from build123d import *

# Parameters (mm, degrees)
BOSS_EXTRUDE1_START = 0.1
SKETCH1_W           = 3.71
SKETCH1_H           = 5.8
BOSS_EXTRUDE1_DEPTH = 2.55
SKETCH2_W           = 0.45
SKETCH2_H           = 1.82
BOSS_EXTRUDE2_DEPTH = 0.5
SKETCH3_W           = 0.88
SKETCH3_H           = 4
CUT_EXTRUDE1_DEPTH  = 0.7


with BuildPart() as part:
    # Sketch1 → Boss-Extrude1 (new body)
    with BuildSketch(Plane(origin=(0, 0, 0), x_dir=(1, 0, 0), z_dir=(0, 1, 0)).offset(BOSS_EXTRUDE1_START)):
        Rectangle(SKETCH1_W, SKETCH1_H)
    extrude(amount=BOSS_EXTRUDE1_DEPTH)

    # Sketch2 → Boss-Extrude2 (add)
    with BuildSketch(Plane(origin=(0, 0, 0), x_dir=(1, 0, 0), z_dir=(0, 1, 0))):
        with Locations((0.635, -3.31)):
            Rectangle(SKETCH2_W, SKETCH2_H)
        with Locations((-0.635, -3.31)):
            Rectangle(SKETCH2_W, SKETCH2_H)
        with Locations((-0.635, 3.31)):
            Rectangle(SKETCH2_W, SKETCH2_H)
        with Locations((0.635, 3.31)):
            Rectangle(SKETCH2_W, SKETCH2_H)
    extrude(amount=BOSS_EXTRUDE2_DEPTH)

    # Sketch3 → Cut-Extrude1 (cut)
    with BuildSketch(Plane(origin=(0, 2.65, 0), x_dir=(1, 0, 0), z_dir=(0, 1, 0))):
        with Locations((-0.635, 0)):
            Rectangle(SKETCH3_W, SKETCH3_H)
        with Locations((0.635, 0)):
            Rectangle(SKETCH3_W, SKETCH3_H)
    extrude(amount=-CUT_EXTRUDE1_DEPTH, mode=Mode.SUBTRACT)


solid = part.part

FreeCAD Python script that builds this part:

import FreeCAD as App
import Part
import Sketcher

V = App.Vector


def add_polygon(sketch, points):
    """Adds a closed chain of lines whose ends are joined by coincident constraints."""
    first, n = sketch.GeometryCount, len(points)
    for a, b in zip(points, points[1:] + points[:1]):
        sketch.addGeometry(Part.LineSegment(App.Vector(*a, 0), App.Vector(*b, 0)), False)
    for i in range(n):
        sketch.addConstraint(Sketcher.Constraint("Coincident", first + i, 2, first + (i + 1) % n, 1))

doc = App.newDocument("Part")
body = doc.addObject("PartDesign::Body", "Body")

# Sketch on XZ plane
sketch1 = body.newObject("Sketcher::SketchObject", "Sketch")
sketch1.AttachmentSupport = (doc.getObject("XZ_Plane"), [""])
sketch1.MapMode = "FlatFace"
sketch1.AttachmentOffset = App.Placement(V(0, 0, -0.1), App.Rotation())
add_polygon(sketch1, [(-1.855, -2.9), (-1.855, 2.9), (1.855, 2.9), (1.855, -2.9)])  # lines 0-3
sketch1.addConstraint([
    Sketcher.Constraint("Vertical", 0),
    Sketcher.Constraint("Horizontal", 1),
    Sketcher.Constraint("Vertical", 2),
    Sketcher.Constraint("Horizontal", 3),
    Sketcher.Constraint("Symmetric", 0, 2, 2, 2, -1, 1),
    Sketcher.Constraint("DistanceY", 0, 1, 0, 2, 5.8),
    Sketcher.Constraint("DistanceX", 1, 1, 1, 2, 3.71),
])
pad1 = body.newObject("PartDesign::Pad", "Pad")
pad1.Profile = sketch1
pad1.Length = 2.55
pad1.Reversed = True

# Sketch on XZ plane
sketch2 = body.newObject("Sketcher::SketchObject", "Sketch001")
sketch2.AttachmentSupport = (doc.getObject("XZ_Plane"), [""])
sketch2.MapMode = "FlatFace"
add_polygon(sketch2, [(0.41, 2.4), (0.41, 4.22), (0.86, 4.22), (0.86, 2.4)])  # lines 0-3
add_polygon(sketch2, [(-0.86, 2.4), (-0.86, 4.22), (-0.41, 4.22), (-0.41, 2.4)])  # lines 4-7
add_polygon(sketch2, [(-0.86, -4.22), (-0.86, -2.4), (-0.41, -2.4), (-0.41, -4.22)])  # lines 8-11
add_polygon(sketch2, [(0.41, -4.22), (0.41, -2.4), (0.86, -2.4), (0.86, -4.22)])  # lines 12-15
sketch2.addConstraint([
    Sketcher.Constraint("Vertical", 0),
    Sketcher.Constraint("Horizontal", 1),
    Sketcher.Constraint("Vertical", 2),
    Sketcher.Constraint("Horizontal", 3),
    Sketcher.Constraint("Vertical", 4),
    Sketcher.Constraint("Horizontal", 5),
    Sketcher.Constraint("Vertical", 6),
    Sketcher.Constraint("Horizontal", 7),
    Sketcher.Constraint("Vertical", 8),
    Sketcher.Constraint("Horizontal", 9),
    Sketcher.Constraint("Vertical", 10),
    Sketcher.Constraint("Horizontal", 11),
    Sketcher.Constraint("Vertical", 12),
    Sketcher.Constraint("Horizontal", 13),
    Sketcher.Constraint("Vertical", 14),
    Sketcher.Constraint("Horizontal", 15),
    Sketcher.Constraint("Symmetric", 2, 2, 8, 2, -1, 1),
    Sketcher.Constraint("Symmetric", 0, 2, 10, 2, -1, 1),
    Sketcher.Constraint("Symmetric", 6, 2, 12, 2, -1, 1),
    Sketcher.Constraint("Symmetric", 4, 2, 14, 2, -1, 1),
    Sketcher.Constraint("Symmetric", 1, 2, 4, 2, -2),
    Sketcher.Constraint("Symmetric", 3, 2, 6, 2, -2),
    Sketcher.Constraint("DistanceX", 1, 1, 1, 2, 0.45),
    Sketcher.Constraint("DistanceY", 0, 1, 0, 2, 1.82),
    Sketcher.Constraint("DistanceY", -1, 1, 2, 2, 2.4),
    Sketcher.Constraint("DistanceX", -1, 1, 0, 2, 0.41),
])
pad2 = body.newObject("PartDesign::Pad", "Pad001")
pad2.Profile = sketch2
pad2.Length = 0.5
pad2.Reversed = True

# Sketch on XZ plane
sketch3 = body.newObject("Sketcher::SketchObject", "Sketch002")
sketch3.AttachmentSupport = (doc.getObject("XZ_Plane"), [""])
sketch3.MapMode = "FlatFace"
sketch3.AttachmentOffset = App.Placement(V(0, 0, -2.65), App.Rotation())
add_polygon(sketch3, [(-1.075, -2), (-1.075, 2), (-0.195, 2), (-0.195, -2)])  # lines 0-3
add_polygon(sketch3, [(0.195, -2), (0.195, 2), (1.075, 2), (1.075, -2)])  # lines 4-7
sketch3.addConstraint([
    Sketcher.Constraint("Vertical", 0),
    Sketcher.Constraint("Horizontal", 1),
    Sketcher.Constraint("Vertical", 2),
    Sketcher.Constraint("Horizontal", 3),
    Sketcher.Constraint("Vertical", 4),
    Sketcher.Constraint("Horizontal", 5),
    Sketcher.Constraint("Vertical", 6),
    Sketcher.Constraint("Horizontal", 7),
    Sketcher.Constraint("Symmetric", 2, 2, 4, 2, -1, 1),
    Sketcher.Constraint("Symmetric", 0, 2, 6, 2, -1, 1),
    Sketcher.Constraint("Horizontal", 1, 2, 4, 2),
    Sketcher.Constraint("DistanceY", 0, 1, 0, 2, 4.0),
    Sketcher.Constraint("DistanceX", 1, 1, 1, 2, 0.88),
    Sketcher.Constraint("DistanceX", 1, 2, 4, 2, 0.39),
])
pocket1 = body.newObject("PartDesign::Pocket", "Pocket")
pocket1.Profile = sketch3
pocket1.Length = 0.7
pocket1.Reversed = True

doc.recompute()
